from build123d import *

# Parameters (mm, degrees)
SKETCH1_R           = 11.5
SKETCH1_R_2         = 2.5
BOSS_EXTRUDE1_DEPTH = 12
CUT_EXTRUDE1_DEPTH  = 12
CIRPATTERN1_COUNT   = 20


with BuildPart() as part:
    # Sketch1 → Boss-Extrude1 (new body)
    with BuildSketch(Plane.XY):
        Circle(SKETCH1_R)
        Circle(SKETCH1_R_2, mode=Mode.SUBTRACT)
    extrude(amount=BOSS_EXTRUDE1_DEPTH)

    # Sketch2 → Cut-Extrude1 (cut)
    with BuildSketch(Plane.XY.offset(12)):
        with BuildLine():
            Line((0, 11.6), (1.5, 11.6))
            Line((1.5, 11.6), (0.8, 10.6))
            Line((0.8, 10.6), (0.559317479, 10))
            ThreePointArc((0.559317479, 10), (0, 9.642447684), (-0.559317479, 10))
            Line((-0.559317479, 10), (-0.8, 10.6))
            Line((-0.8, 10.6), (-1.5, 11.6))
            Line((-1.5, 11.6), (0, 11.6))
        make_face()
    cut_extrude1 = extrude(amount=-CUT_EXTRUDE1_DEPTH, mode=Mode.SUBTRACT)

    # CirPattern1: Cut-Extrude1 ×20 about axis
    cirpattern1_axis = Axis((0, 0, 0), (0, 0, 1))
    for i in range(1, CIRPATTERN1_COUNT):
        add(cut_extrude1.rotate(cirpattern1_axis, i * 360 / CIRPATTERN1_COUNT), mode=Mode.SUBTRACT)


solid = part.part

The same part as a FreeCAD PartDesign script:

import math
import FreeCAD as App
import Part
import Sketcher

V = App.Vector
Q = App.Units.Quantity

doc = App.newDocument("Part")
body = doc.addObject("PartDesign::Body", "Body")

sketch1 = doc.addObject("Sketcher::SketchObject", "Sketch")
body.addObject(sketch1)
sketch1.AttachmentSupport = (doc.XY_Plane, [""])
sketch1.MapMode = "FlatFace"
sketch1.addGeometry([
    Part.Circle(V(0, 0, 0), V(0, 0, 1), 11.5),
    Part.Circle(V(0, 0, 0), V(0, 0, 1), 2.5),
], False)
sketch1.addConstraint([
    Sketcher.Constraint("Coincident", 0, 3, -1, 1),
    Sketcher.Constraint("Coincident", 1, 3, -1, 1),
    Sketcher.Constraint("Diameter", 0, Q("23 mm")),
    Sketcher.Constraint("Diameter", 1, Q("5 mm")),
])
pad1 = doc.addObject("PartDesign::Pad", "Pad")
body.addObject(pad1)
pad1.Profile = sketch1
pad1.Length = 12

sketch2 = doc.addObject("Sketcher::SketchObject", "Sketch001")
body.addObject(sketch2)
sketch2.AttachmentSupport = (doc.XY_Plane, [""])
sketch2.MapMode = "FlatFace"
sketch2.AttachmentOffset = App.Placement(V(0, 0, 12), App.Rotation())
sketch2.addGeometry([
    Part.LineSegment(V(0.8, 10.6, 0), V(1.5, 11.6, 0)),
    Part.LineSegment(V(1.5, 11.6, 0), V(-1.5, 11.6, 0)),
    Part.LineSegment(V(-1.5, 11.6, 0), V(-0.8, 10.6, 0)),
    Part.LineSegment(V(-0.8, 10.6, 0), V(-0.559317, 10, 0)),
    Part.ArcOfCircle(Part.Circle(V(0, 10.258693, 0), V(0, 0, 1), 0.616245), math.radians(-155.178748), math.radians(-24.821252)),
    Part.LineSegment(V(0.559317, 10, 0), V(0.8, 10.6, 0)),
], False)
sketch2.addConstraint([
    Sketcher.Constraint("Coincident", 0, 2, 1, 1),
    Sketcher.Constraint("Coincident", 1, 2, 2, 1),
    Sketcher.Constraint("Coincident", 2, 2, 3, 1),
    Sketcher.Constraint("Coincident", 3, 2, 4, 1),
    Sketcher.Constraint("Coincident", 4, 2, 5, 1),
    Sketcher.Constraint("Coincident", 5, 2, 0, 1),
    Sketcher.Constraint("Horizontal", 1),
    Sketcher.Constraint("Symmetric", 3, 2, 4, 2, -2),
    Sketcher.Constraint("Symmetric", 2, 2, 5, 2, -2),
    Sketcher.Constraint("Equal", 0, 2),
    Sketcher.Constraint("DistanceX", 1, 2, 1, 1, Q("3 mm")),
    Sketcher.Constraint("DistanceY", -1, 1, 3, 2, Q("10 mm")),
    Sketcher.Constraint("DistanceY", 2, 2, 1, 2, Q("1 mm")),
    Sketcher.Constraint("DistanceY", -1, 1, 0, 2, Q("11.6 mm")),
    Sketcher.Constraint("DistanceX", 2, 2, -1, 1, Q("0.8 mm")),
    Sketcher.Constraint("Radius", 4, Q("0.616245 mm")),
    Sketcher.Constraint("Distance", 3, Q("0.646474 mm")),
])
pocket1 = doc.addObject("PartDesign::Pocket", "Pocket")
body.addObject(pocket1)
pocket1.Profile = sketch2
pocket1.Length = 12
doc.recompute()

polarpattern = doc.addObject("PartDesign::PolarPattern", "PolarPattern")
body.addObject(polarpattern)
polarpattern.Originals = [pocket1]
polarpattern.Axis = (doc.Z_Axis, [""])
polarpattern.Angle = 360
polarpattern.Occurrences = 20
body.Tip = polarpattern

doc.recompute()
